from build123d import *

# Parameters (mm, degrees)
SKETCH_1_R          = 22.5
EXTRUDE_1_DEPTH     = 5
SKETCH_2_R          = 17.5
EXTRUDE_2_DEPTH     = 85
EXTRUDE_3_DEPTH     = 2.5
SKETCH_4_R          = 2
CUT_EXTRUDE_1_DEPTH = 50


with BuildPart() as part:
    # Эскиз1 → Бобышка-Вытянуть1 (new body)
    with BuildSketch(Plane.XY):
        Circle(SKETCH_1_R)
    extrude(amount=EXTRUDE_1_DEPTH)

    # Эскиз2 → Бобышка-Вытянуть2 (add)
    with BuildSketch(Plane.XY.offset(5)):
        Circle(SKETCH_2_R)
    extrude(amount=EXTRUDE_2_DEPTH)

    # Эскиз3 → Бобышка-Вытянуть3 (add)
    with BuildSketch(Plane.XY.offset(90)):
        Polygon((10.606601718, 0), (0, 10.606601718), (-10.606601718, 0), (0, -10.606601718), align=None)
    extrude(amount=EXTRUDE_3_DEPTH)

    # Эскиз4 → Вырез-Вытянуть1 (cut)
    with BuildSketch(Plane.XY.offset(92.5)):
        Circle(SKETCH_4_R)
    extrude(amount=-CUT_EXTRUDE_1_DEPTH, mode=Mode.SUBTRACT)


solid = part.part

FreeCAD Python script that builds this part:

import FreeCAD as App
import Part
import Sketcher
from FreeCAD import Vector


def add_polygon(sketch, points):
    """Adds a closed chain of lines whose ends are joined by coincident constraints."""
    first, n = sketch.GeometryCount, len(points)
    for a, b in zip(points, points[1:] + points[:1]):
        sketch.addGeometry(Part.LineSegment(App.Vector(*a, 0), App.Vector(*b, 0)), False)
    for i in range(n):
        sketch.addConstraint(Sketcher.Constraint("Coincident", first + i, 2, first + (i + 1) % n, 1))

doc = App.newDocument("Part")
params = doc.addObject("Spreadsheet::Sheet", "Params")
for row, (alias, value) in enumerate([
    ("sketch1_diameter", "45 mm"),
    ("pad1_length", "5 mm"),
    ("sketch2_diameter", "35 mm"),
    ("pad2_length", "85 mm"),
    ("sketch3_length", "15 mm"),
    ("pad3_length", "2.5 mm"),
    ("sketch4_diameter", "4 mm"),
    ("pocket1_length", "50 mm"),
], start=1):
    params.set(f"A{row}", alias)
    params.set(f"B{row}", "=" + value)
    params.setAlias(f"B{row}", alias)

body = doc.addObject("PartDesign::Body", "Body")

# Sketch on XY plane
sketch1 = body.newObject("Sketcher::SketchObject", "Sketch")
sketch1.AttachmentSupport = (doc.getObject("XY_Plane"), [""])
sketch1.MapMode = "FlatFace"
sketch1.addGeometry(Part.Circle(Vector(0, 0, 0), Vector(0, 0, 1), 22), False)
sketch1.addConstraint(Sketcher.Constraint("Coincident", 0, 3, -1, 1))
sketch1.addConstraint(Sketcher.Constraint("Diameter", 0, 45.0))
sketch1.setExpression("Constraints[1]", "Params.sketch1_diameter")
pad1 = body.newObject("PartDesign::Pad", "Pad")
pad1.Profile = sketch1
pad1.setExpression("Length", "Params.pad1_length")

# Sketch on XY plane
sketch2 = body.newObject("Sketcher::SketchObject", "Sketch001")
sketch2.AttachmentSupport = (doc.getObject("XY_Plane"), [""])
sketch2.MapMode = "FlatFace"
sketch2.AttachmentOffset = App.Placement(Vector(0, 0, 5), App.Rotation())
sketch2.addGeometry(Part.Circle(Vector(0, 0, 0), Vector(0, 0, 1), 18), False)
sketch2.addConstraint(Sketcher.Constraint("Coincident", 0, 3, -1, 1))
sketch2.addConstraint(Sketcher.Constraint("Diameter", 0, 35.0))
sketch2.setExpression("Constraints[1]", "Params.sketch2_diameter")
pad2 = body.newObject("PartDesign::Pad", "Pad001")
pad2.Profile = sketch2
pad2.setExpression("Length", "Params.pad2_length")

# Sketch on XY plane
sketch3 = body.newObject("Sketcher::SketchObject", "Sketch002")
sketch3.AttachmentSupport = (doc.getObject("XY_Plane"), [""])
sketch3.MapMode = "FlatFace"
sketch3.AttachmentOffset = App.Placement(Vector(0, 0, 90), App.Rotation())
add_polygon(sketch3, [(11, 0), (0, 11), (-11, 0), (0, -11)])  # lines 0-3
sketch3.addConstraint(Sketcher.Constraint("Symmetric", 0, 2, 2, 2, -1, 1))
sketch3.addConstraint(Sketcher.Constraint("Symmetric", 1, 2, 3, 2, -1, 1))
sketch3.addConstraint(Sketcher.Constraint("PointOnObject", 0, 2, -2))
sketch3.addConstraint(Sketcher.Constraint("PointOnObject", 1, 2, -1))
sketch3.addConstraint(Sketcher.Constraint("Perpendicular", 0, 1))
sketch3.addConstraint(Sketcher.Constraint("Distance", 0, 15.0))
sketch3.setExpression("Constraints[9]", "Params.sketch3_length")
pad3 = body.newObject("PartDesign::Pad", "Pad002")
pad3.Profile = sketch3
pad3.setExpression("Length", "Params.pad3_length")

# Sketch on XY plane
sketch4 = body.newObject("Sketcher::SketchObject", "Sketch003")
sketch4.AttachmentSupport = (doc.getObject("XY_Plane"), [""])
sketch4.MapMode = "FlatFace"
sketch4.AttachmentOffset = App.Placement(Vector(0, 0, 92.5), App.Rotation())
sketch4.addGeometry(Part.Circle(Vector(0, 0, 0), Vector(0, 0, 1), 2), False)
sketch4.addConstraint(Sketcher.Constraint("Coincident", 0, 3, -1, 1))
sketch4.addConstraint(Sketcher.Constraint("Diameter", 0, 4.0))
sketch4.setExpression("Constraints[1]", "Params.sketch4_diameter")
pocket1 = body.newObject("PartDesign::Pocket", "Pocket")
pocket1.Profile = sketch4
pocket1.setExpression("Length", "Params.pocket1_length")

doc.recompute()
